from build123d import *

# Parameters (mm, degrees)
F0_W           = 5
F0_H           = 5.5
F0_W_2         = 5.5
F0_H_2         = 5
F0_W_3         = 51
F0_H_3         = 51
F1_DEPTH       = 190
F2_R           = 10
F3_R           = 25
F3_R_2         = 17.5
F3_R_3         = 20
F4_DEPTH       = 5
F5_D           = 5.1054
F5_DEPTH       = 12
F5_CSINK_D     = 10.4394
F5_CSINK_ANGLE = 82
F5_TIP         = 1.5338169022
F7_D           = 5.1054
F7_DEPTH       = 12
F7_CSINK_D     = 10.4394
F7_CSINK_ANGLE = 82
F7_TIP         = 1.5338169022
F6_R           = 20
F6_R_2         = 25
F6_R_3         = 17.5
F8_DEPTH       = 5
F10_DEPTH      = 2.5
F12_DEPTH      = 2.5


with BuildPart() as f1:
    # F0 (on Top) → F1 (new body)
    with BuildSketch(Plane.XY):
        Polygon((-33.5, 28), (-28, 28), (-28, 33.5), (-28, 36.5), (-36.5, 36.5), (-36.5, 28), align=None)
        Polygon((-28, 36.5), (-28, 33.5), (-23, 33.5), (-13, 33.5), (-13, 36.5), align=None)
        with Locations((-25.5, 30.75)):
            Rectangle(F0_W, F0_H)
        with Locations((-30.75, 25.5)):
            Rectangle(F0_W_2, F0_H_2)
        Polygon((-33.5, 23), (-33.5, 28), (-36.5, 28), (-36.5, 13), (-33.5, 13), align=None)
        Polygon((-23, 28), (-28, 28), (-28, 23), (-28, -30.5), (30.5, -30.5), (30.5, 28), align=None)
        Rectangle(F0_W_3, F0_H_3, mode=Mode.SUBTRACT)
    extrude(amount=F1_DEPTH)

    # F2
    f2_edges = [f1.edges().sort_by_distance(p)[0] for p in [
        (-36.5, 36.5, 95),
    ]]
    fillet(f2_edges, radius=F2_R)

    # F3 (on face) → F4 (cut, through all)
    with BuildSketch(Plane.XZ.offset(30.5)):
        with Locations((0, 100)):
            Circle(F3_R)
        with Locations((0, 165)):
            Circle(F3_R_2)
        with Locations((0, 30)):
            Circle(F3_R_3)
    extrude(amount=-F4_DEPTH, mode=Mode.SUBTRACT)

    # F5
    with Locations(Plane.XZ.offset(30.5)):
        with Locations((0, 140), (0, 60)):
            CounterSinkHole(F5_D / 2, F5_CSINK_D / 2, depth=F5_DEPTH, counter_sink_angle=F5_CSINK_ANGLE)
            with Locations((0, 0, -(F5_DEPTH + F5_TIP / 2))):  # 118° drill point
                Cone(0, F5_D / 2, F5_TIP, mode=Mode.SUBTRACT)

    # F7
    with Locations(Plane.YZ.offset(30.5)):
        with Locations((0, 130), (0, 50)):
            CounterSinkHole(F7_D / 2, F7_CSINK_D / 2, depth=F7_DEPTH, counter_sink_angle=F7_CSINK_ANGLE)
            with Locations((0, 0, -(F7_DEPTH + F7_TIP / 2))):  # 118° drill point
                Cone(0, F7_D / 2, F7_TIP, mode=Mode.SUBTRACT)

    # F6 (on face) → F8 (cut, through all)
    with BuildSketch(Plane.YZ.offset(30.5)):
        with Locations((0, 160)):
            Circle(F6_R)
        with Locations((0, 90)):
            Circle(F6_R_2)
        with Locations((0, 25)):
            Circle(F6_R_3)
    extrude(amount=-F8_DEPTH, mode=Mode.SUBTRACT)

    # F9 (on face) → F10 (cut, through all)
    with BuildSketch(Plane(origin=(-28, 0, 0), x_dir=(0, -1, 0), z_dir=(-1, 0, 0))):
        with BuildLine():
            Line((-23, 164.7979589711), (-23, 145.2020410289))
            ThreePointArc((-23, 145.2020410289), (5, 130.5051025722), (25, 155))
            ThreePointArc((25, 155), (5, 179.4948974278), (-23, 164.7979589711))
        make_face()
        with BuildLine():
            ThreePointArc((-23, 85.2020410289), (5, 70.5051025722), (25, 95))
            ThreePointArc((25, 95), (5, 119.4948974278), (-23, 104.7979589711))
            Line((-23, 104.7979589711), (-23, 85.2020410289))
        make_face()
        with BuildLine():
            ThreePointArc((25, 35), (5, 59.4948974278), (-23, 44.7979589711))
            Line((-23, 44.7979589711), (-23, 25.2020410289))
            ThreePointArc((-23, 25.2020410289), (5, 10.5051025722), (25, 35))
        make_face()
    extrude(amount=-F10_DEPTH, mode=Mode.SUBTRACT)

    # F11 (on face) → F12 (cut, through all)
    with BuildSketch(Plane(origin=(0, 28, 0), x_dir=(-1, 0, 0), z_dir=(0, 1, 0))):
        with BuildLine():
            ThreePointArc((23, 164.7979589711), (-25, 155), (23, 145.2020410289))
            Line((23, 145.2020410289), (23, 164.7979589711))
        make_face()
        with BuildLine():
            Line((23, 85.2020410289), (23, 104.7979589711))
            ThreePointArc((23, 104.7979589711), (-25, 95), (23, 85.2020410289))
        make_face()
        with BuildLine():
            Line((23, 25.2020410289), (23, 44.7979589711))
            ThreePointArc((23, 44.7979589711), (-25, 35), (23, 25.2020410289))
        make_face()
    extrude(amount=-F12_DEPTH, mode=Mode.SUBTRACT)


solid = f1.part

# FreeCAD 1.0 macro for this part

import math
import FreeCAD as App
import Part
import Sketcher

V = App.Vector
Q = App.Units.Quantity


def edges_at(feature, points):
    """Names of the edges that pass closest to the given points."""
    edges = feature.Shape.Edges
    near = lambda p: min(range(len(edges)), key=lambda i: edges[i].distToShape(Part.Vertex(*p))[0])
    return sorted({f"Edge{near(p) + 1}" for p in points})


def add_polygon(sketch, points):
    """Adds a closed chain of lines whose ends are joined by coincident constraints."""
    first, n = sketch.GeometryCount, len(points)
    for a, b in zip(points, points[1:] + points[:1]):
        sketch.addGeometry(Part.LineSegment(App.Vector(*a, 0), App.Vector(*b, 0)), False)
    for i in range(n):
        sketch.addConstraint(Sketcher.Constraint("Coincident", first + i, 2, first + (i + 1) % n, 1))

doc = App.newDocument("Part")
body = doc.addObject("PartDesign::Body", "Body")

sketch1 = body.newObject("Sketcher::SketchObject", "Sketch")
sketch1.AttachmentSupport = (doc.getObject("XY_Plane"), [""])
sketch1.MapMode = "FlatFace"
add_polygon(sketch1, [(-23, 33.5), (-13, 33.5), (-13, 36.5), (-36.5, 36.5), (-36.5, 13), (-33.5, 13), (-33.5, 23), (-28, 23), (-28, -30.5), (30.5, -30.5), (30.5, 28), (-23, 28)])
add_polygon(sketch1, [(25.5, -25.5), (-25.5, -25.5), (-25.5, 25.5), (25.5, 25.5)])
sketch1.addConstraint([
    Sketcher.Constraint("Horizontal", 0),
    Sketcher.Constraint("Vertical", 1),
    Sketcher.Constraint("Horizontal", 2),
    Sketcher.Constraint("Vertical", 3),
    Sketcher.Constraint("Horizontal", 4),
    Sketcher.Constraint("Vertical", 5),
    Sketcher.Constraint("Horizontal", 6),
    Sketcher.Constraint("Vertical", 7),
    Sketcher.Constraint("Horizontal", 8),
    Sketcher.Constraint("Vertical", 9),
    Sketcher.Constraint("Horizontal", 10),
    Sketcher.Constraint("Vertical", 11),
    Sketcher.Constraint("Horizontal", 12),
    Sketcher.Constraint("Vertical", 13),
    Sketcher.Constraint("Horizontal", 14),
    Sketcher.Constraint("Vertical", 15),
    Sketcher.Constraint("Symmetric", 12, 2, 14, 2, -1, 1),
    Sketcher.Constraint("Equal", 4, 1),
    Sketcher.Constraint("Equal", 2, 3),
    Sketcher.Constraint("Equal", 0, 5),
    Sketcher.Constraint("Equal", 10, 7),
    Sketcher.Constraint("Equal", 8, 9),
    Sketcher.Constraint("Equal", 14, 13),
    Sketcher.Constraint("DistanceX", 0, 1, 0, 2, Q("10 mm")),
    Sketcher.Constraint("DistanceX", 4, 1, 4, 2, Q("3 mm")),
    Sketcher.Constraint("DistanceX", 12, 2, 12, 1, Q("51 mm")),
    Sketcher.Constraint("DistanceX", 2, 2, 2, 1, Q("23.5 mm")),
    Sketcher.Constraint("DistanceX", 6, 1, 6, 2, Q("5.5 mm")),
    Sketcher.Constraint("DistanceX", 8, 1, 8, 2, Q("58.5 mm")),
    Sketcher.Constraint("DistanceX", 0, 2, -1, 1, Q("13 mm")),
    Sketcher.Constraint("DistanceY", -1, 1, 3, 2, Q("13 mm")),
])
pad1 = body.newObject("PartDesign::Pad", "Pad")
pad1.Profile = sketch1
pad1.Length = 190
doc.recompute()

fillet = body.newObject("PartDesign::Fillet", "Fillet")
fillet.Base = (pad1, edges_at(pad1, [(-36.5, 36.5, 95)]))
fillet.Radius = 10

sketch2 = body.newObject("Sketcher::SketchObject", "Sketch001")
sketch2.AttachmentSupport = (doc.getObject("XZ_Plane"), [""])
sketch2.MapMode = "FlatFace"
sketch2.AttachmentOffset = App.Placement(V(0, 0, 30.5), App.Rotation())
sketch2.addGeometry([
    Part.Circle(V(0, 100, 0), V(0, 0, 1), 25),
    Part.Circle(V(0, 165, 0), V(0, 0, 1), 18),
    Part.Circle(V(0, 30, 0), V(0, 0, 1), 20),
], False)
sketch2.addConstraint([
    Sketcher.Constraint("PointOnObject", 0, 3, -2),
    Sketcher.Constraint("PointOnObject", 1, 3, -2),
    Sketcher.Constraint("PointOnObject", 2, 3, -2),
    Sketcher.Constraint("Diameter", 0, Q("50 mm")),
    Sketcher.Constraint("Diameter", 1, Q("35 mm")),
    Sketcher.Constraint("Diameter", 2, Q("40 mm")),
    Sketcher.Constraint("DistanceY", -1, 1, 0, 3, Q("100 mm")),
    Sketcher.Constraint("DistanceY", -1, 1, 1, 3, Q("165 mm")),
    Sketcher.Constraint("DistanceY", -1, 1, 2, 3, Q("30 mm")),
])
pocket1 = body.newObject("PartDesign::Pocket", "Pocket")
pocket1.Profile = sketch2
pocket1.Length = 5

sketch3 = body.newObject("Sketcher::SketchObject", "Sketch002")
sketch3.AttachmentSupport = (doc.getObject("XZ_Plane"), [""])
sketch3.MapMode = "FlatFace"
sketch3.AttachmentOffset = App.Placement(V(0, 0, 30.5), App.Rotation())
sketch3.addGeometry([
    Part.Circle(V(0, 140, 0), V(0, 0, 1), 2.6),
    Part.Circle(V(0, 60, 0), V(0, 0, 1), 2.6),
], False)
sketch3.addConstraint([
    Sketcher.Constraint("Equal", 0, 1),
    Sketcher.Constraint("PointOnObject", 0, 3, -2),
    Sketcher.Constraint("PointOnObject", 1, 3, -2),
    Sketcher.Constraint("DistanceY", -1, 1, 0, 3, Q("140 mm")),
    Sketcher.Constraint("DistanceY", -1, 1, 1, 3, Q("60 mm")),
    Sketcher.Constraint("Diameter", 0, Q("5.1054 mm")),
])
doc.recompute()
hole = body.newObject("PartDesign::Hole", "Hole")
hole.Profile = sketch3
hole.ThreadType = "None"
hole.Diameter = 5.1054
hole.DepthType = "Dimension"
hole.Depth = 12
hole.DrillPoint = "Angled"
hole.DrillPointAngle = 118
hole.HoleCutType = "Countersink"
hole.HoleCutDiameter = 10.4394
hole.HoleCutCountersinkAngle = 82

sketch4 = body.newObject("Sketcher::SketchObject", "Sketch003")
sketch4.AttachmentSupport = (doc.getObject("YZ_Plane"), [""])
sketch4.MapMode = "FlatFace"
sketch4.AttachmentOffset = App.Placement(V(0, 0, 30.5), App.Rotation())
sketch4.addGeometry([
    Part.Circle(V(0, 130, 0), V(0, 0, 1), 2.6),
    Part.Circle(V(0, 50, 0), V(0, 0, 1), 2.6),
], False)
sketch4.addConstraint([
    Sketcher.Constraint("Equal", 0, 1),
    Sketcher.Constraint("PointOnObject", 0, 3, -2),
    Sketcher.Constraint("PointOnObject", 1, 3, -2),
    Sketcher.Constraint("DistanceY", -1, 1, 0, 3, Q("130 mm")),
    Sketcher.Constraint("DistanceY", -1, 1, 1, 3, Q("50 mm")),
    Sketcher.Constraint("Diameter", 0, Q("5.1054 mm")),
])
doc.recompute()
hole2 = body.newObject("PartDesign::Hole", "Hole001")
hole2.Profile = sketch4
hole2.ThreadType = "None"
hole2.Diameter = 5.1054
hole2.DepthType = "Dimension"
hole2.Depth = 12
hole2.DrillPoint = "Angled"
hole2.DrillPointAngle = 118
hole2.HoleCutType = "Countersink"
hole2.HoleCutDiameter = 10.4394
hole2.HoleCutCountersinkAngle = 82

sketch5 = body.newObject("Sketcher::SketchObject", "Sketch004")
sketch5.AttachmentSupport = (doc.getObject("YZ_Plane"), [""])
sketch5.MapMode = "FlatFace"
sketch5.AttachmentOffset = App.Placement(V(0, 0, 30.5), App.Rotation())
sketch5.addGeometry([
    Part.Circle(V(0, 160, 0), V(0, 0, 1), 20),
    Part.Circle(V(0, 90, 0), V(0, 0, 1), 25),
    Part.Circle(V(0, 25, 0), V(0, 0, 1), 18),
], False)
sketch5.addConstraint([
    Sketcher.Constraint("PointOnObject", 0, 3, -2),
    Sketcher.Constraint("PointOnObject", 1, 3, -2),
    Sketcher.Constraint("PointOnObject", 2, 3, -2),
    Sketcher.Constraint("Diameter", 0, Q("40 mm")),
    Sketcher.Constraint("Diameter", 1, Q("50 mm")),
    Sketcher.Constraint("Diameter", 2, Q("35 mm")),
    Sketcher.Constraint("DistanceY", -1, 1, 0, 3, Q("160 mm")),
    Sketcher.Constraint("DistanceY", -1, 1, 1, 3, Q("90 mm")),
    Sketcher.Constraint("DistanceY", -1, 1, 2, 3, Q("25 mm")),
])
pocket2 = body.newObject("PartDesign::Pocket", "Pocket001")
pocket2.Profile = sketch5
pocket2.Length = 5

sketch6 = body.newObject("Sketcher::SketchObject", "Sketch005")
sketch6.AttachmentSupport = (doc.getObject("YZ_Plane"), [""])
sketch6.MapMode = "FlatFace"
sketch6.AttachmentOffset = App.Placement(V(0, 0, -28), App.Rotation())
sketch6.addGeometry([
    Part.LineSegment(V(23, 165, 0), V(23, 145, 0)),
    Part.ArcOfCircle(Part.Circle(V(0, 155, 0), V(0, 0, 1), 25), math.radians(180), math.radians(337)),
    Part.ArcOfCircle(Part.Circle(V(0, 155, 0), V(0, 0, 1), 25), math.radians(23), math.radians(180)),
    Part.ArcOfCircle(Part.Circle(V(0, 95, 0), V(0, 0, 1), 25), math.radians(180), math.radians(337)),
    Part.ArcOfCircle(Part.Circle(V(0, 95, 0), V(0, 0, 1), 25), math.radians(23), math.radians(180)),
    Part.LineSegment(V(23, 105, 0), V(23, 85, 0)),
    Part.ArcOfCircle(Part.Circle(V(0, 35, 0), V(0, 0, 1), 25), math.radians(23), math.radians(180)),
    Part.LineSegment(V(23, 45, 0), V(23, 25, 0)),
    Part.ArcOfCircle(Part.Circle(V(0, 35, 0), V(0, 0, 1), 25), math.radians(180), math.radians(337)),
], False)
sketch6.addConstraint([
    Sketcher.Constraint("Coincident", 0, 2, 1, 2),
    Sketcher.Constraint("Tangent", 1, 1, 2, 2),
    Sketcher.Constraint("Coincident", 2, 1, 0, 1),
    Sketcher.Constraint("Tangent", 3, 1, 4, 2),
    Sketcher.Constraint("Coincident", 4, 1, 5, 1),
    Sketcher.Constraint("Coincident", 5, 2, 3, 2),
    Sketcher.Constraint("Coincident", 6, 1, 7, 1),
    Sketcher.Constraint("Coincident", 7, 2, 8, 2),
    Sketcher.Constraint("Tangent", 8, 1, 6, 2),
    Sketcher.Constraint("Vertical", 0),
    Sketcher.Constraint("Vertical", 5),
    Sketcher.Constraint("Vertical", 7),
    Sketcher.Constraint("Equal", 1, 2),
    Sketcher.Constraint("Equal", 2, 3),
    Sketcher.Constraint("Equal", 3, 4),
    Sketcher.Constraint("Equal", 4, 6),
    Sketcher.Constraint("Equal", 6, 8),
    Sketcher.Constraint("PointOnObject", 1, 3, -2),
    Sketcher.Constraint("PointOnObject", 3, 3, -2),
    Sketcher.Constraint("PointOnObject", 6, 3, -2),
    Sketcher.Constraint("Horizontal", 2, 3, 1, 1),
    Sketcher.Constraint("Horizontal", 4, 3, 3, 1),
    Sketcher.Constraint("Horizontal", 6, 3, 8, 1),
    Sketcher.Constraint("Vertical", 2, 1, 4, 1),
    Sketcher.Constraint("Vertical", 5, 2, 6, 1),
    Sketcher.Constraint("Radius", 1, Q("25 mm")),
    Sketcher.Constraint("DistanceY", -1, 1, 1, 3, Q("155 mm")),
    Sketcher.Constraint("DistanceY", -1, 1, 3, 3, Q("95 mm")),
    Sketcher.Constraint("DistanceY", -1, 1, 6, 3, Q("35 mm")),
    Sketcher.Constraint("DistanceX", -1, 1, 0, 2, Q("23 mm")),
])
pocket3 = body.newObject("PartDesign::Pocket", "Pocket002")
pocket3.Profile = sketch6
pocket3.Length = 2.5
pocket3.Reversed = True

sketch7 = body.newObject("Sketcher::SketchObject", "Sketch006")
sketch7.AttachmentSupport = (doc.getObject("XZ_Plane"), [""])
sketch7.MapMode = "FlatFace"
sketch7.AttachmentOffset = App.Placement(V(0, 0, -28), App.Rotation())
sketch7.addGeometry([
    Part.ArcOfCircle(Part.Circle(V(0, 155, 0), V(0, 0, 1), 25), math.radians(-157), math.radians(157)),
    Part.LineSegment(V(-23, 145, 0), V(-23, 165, 0)),
    Part.LineSegment(V(-23, 85, 0), V(-23, 105, 0)),
    Part.ArcOfCircle(Part.Circle(V(0, 95, 0), V(0, 0, 1), 25), math.radians(-157), math.radians(157)),
    Part.LineSegment(V(-23, 25, 0), V(-23, 45, 0)),
    Part.ArcOfCircle(Part.Circle(V(0, 35, 0), V(0, 0, 1), 25), math.radians(-157), math.radians(157)),
], False)
sketch7.addConstraint([
    Sketcher.Constraint("Coincident", 0, 1, 1, 1),
    Sketcher.Constraint("Coincident", 1, 2, 0, 2),
    Sketcher.Constraint("Coincident", 2, 1, 3, 1),
    Sketcher.Constraint("Coincident", 3, 2, 2, 2),
    Sketcher.Constraint("Coincident", 4, 1, 5, 1),
    Sketcher.Constraint("Coincident", 5, 2, 4, 2),
    Sketcher.Constraint("Vertical", 1),
    Sketcher.Constraint("Vertical", 2),
    Sketcher.Constraint("Vertical", 4),
    Sketcher.Constraint("Equal", 0, 3),
    Sketcher.Constraint("Equal", 3, 5),
    Sketcher.Constraint("PointOnObject", 0, 3, -2),
    Sketcher.Constraint("PointOnObject", 3, 3, -2),
    Sketcher.Constraint("PointOnObject", 5, 3, -2),
    Sketcher.Constraint("Vertical", 1, 2, 2, 1),
    Sketcher.Constraint("Vertical", 3, 2, 4, 1),
    Sketcher.Constraint("Radius", 0, Q("25 mm")),
    Sketcher.Constraint("DistanceY", -1, 1, 0, 3, Q("155 mm")),
    Sketcher.Constraint("DistanceY", -1, 1, 3, 3, Q("95 mm")),
    Sketcher.Constraint("DistanceY", -1, 1, 5, 3, Q("35 mm")),
    Sketcher.Constraint("DistanceX", 0, 1, -1, 1, Q("23 mm")),
])
pocket4 = body.newObject("PartDesign::Pocket", "Pocket003")
pocket4.Profile = sketch7
pocket4.Length = 2.5
pocket4.Reversed = True

doc.recompute()
